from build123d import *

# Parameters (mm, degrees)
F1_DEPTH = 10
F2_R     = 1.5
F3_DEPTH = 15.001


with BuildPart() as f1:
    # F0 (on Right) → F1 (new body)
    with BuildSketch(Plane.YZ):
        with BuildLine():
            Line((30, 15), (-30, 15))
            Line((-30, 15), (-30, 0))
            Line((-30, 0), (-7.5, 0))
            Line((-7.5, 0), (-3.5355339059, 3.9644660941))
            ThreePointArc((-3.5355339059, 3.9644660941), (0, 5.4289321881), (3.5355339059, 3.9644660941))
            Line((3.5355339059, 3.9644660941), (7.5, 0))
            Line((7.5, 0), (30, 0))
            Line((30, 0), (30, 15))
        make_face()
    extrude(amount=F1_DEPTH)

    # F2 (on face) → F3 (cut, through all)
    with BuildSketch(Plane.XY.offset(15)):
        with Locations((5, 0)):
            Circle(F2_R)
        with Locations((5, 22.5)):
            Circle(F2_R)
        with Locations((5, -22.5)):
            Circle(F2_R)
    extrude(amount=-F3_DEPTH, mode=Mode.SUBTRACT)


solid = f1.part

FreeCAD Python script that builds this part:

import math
import FreeCAD as App
import Part
import Sketcher
Q = App.Units.Quantity

doc = App.newDocument("Part")
body = doc.addObject("PartDesign::Body", "Body")

# Sketch on YZ plane
sketch1 = body.newObject("Sketcher::SketchObject", "Sketch")
sketch1.AttachmentSupport = (doc.getObject("YZ_Plane"), [""])
sketch1.MapMode = "FlatFace"
sketch1.addGeometry([
    Part.LineSegment(App.Vector(30, 15, 0), App.Vector(-30, 15, 0)),  # 0
    Part.LineSegment(App.Vector(-30, 15, 0), App.Vector(-30, 0, 0)),  # 1
    Part.LineSegment(App.Vector(-30, 0, 0), App.Vector(-8, 0, 0)),  # 2
    Part.LineSegment(App.Vector(-8, 0, 0), App.Vector(-4, 4, 0)),  # 3
    Part.ArcOfCircle(Part.Circle(App.Vector(0, 0, 0), App.Vector(0, 0, 1), 5), math.radians(45), math.radians(135)),  # 4
    Part.LineSegment(App.Vector(4, 4, 0), App.Vector(8, 0, 0)),  # 5
    Part.LineSegment(App.Vector(8, 0, 0), App.Vector(30, 0, 0)),  # 6
    Part.LineSegment(App.Vector(30, 0, 0), App.Vector(30, 15, 0)),  # 7
], False)
sketch1.addConstraint([
    Sketcher.Constraint("Coincident", 0, 2, 1, 1),
    Sketcher.Constraint("Coincident", 1, 2, 2, 1),
    Sketcher.Constraint("Coincident", 2, 2, 3, 1),
    Sketcher.Constraint("Tangent", 3, 2, 4, 2),
    Sketcher.Constraint("Tangent", 4, 1, 5, 1),
    Sketcher.Constraint("Coincident", 5, 2, 6, 1),
    Sketcher.Constraint("Coincident", 6, 2, 7, 1),
    Sketcher.Constraint("Coincident", 7, 2, 0, 1),
    Sketcher.Constraint("Horizontal", 0),
    Sketcher.Constraint("Vertical", 1),
    Sketcher.Constraint("Horizontal", 2),
    Sketcher.Constraint("Horizontal", 6),
    Sketcher.Constraint("Vertical", 7),
    Sketcher.Constraint("Symmetric", 2, 2, 5, 2, -1, 1),
    Sketcher.Constraint("Symmetric", 3, 2, 4, 1, -2),
    Sketcher.Constraint("Perpendicular", 3, 5),
    Sketcher.Constraint("Equal", 2, 6),
    Sketcher.Constraint("Radius", 4, Q("5 mm")),
    Sketcher.Constraint("DistanceX", 0, 2, 0, 1, Q("60 mm")),
    Sketcher.Constraint("DistanceY", 1, 2, 1, 1, Q("15 mm")),
    Sketcher.Constraint("DistanceX", 2, 1, 2, 2, Q("22.5 mm")),
])
pad1 = body.newObject("PartDesign::Pad", "Pad")
pad1.Profile = sketch1
pad1.Length = 10

# Sketch on XY plane
sketch2 = body.newObject("Sketcher::SketchObject", "Sketch001")
sketch2.AttachmentSupport = (doc.getObject("XY_Plane"), [""])
sketch2.MapMode = "FlatFace"
sketch2.AttachmentOffset = App.Placement(App.Vector(0, 0, 15), App.Rotation())
sketch2.addGeometry([
    Part.Circle(App.Vector(5, 0, 0), App.Vector(0, 0, 1), 1.5),
    Part.Circle(App.Vector(5, 22.5, 0), App.Vector(0, 0, 1), 1.5),
    Part.Circle(App.Vector(5, -22.5, 0), App.Vector(0, 0, 1), 1.5),
], False)
sketch2.addConstraint([
    Sketcher.Constraint("Equal", 0, 1),
    Sketcher.Constraint("Equal", 1, 2),
    Sketcher.Constraint("Symmetric", 1, 3, 2, 3, -1),
    Sketcher.Constraint("PointOnObject", 0, 3, -1),
    Sketcher.Constraint("Vertical", 0, 3, 1, 3),
    Sketcher.Constraint("Diameter", 0, Q("3 mm")),
    Sketcher.Constraint("DistanceX", -1, 1, 0, 3, Q("5 mm")),
    Sketcher.Constraint("DistanceY", 2, 3, 1, 3, Q("45 mm")),
])
pocket1 = body.newObject("PartDesign::Pocket", "Pocket")
pocket1.Profile = sketch2
pocket1.Type = "ThroughAll"

doc.recompute()
